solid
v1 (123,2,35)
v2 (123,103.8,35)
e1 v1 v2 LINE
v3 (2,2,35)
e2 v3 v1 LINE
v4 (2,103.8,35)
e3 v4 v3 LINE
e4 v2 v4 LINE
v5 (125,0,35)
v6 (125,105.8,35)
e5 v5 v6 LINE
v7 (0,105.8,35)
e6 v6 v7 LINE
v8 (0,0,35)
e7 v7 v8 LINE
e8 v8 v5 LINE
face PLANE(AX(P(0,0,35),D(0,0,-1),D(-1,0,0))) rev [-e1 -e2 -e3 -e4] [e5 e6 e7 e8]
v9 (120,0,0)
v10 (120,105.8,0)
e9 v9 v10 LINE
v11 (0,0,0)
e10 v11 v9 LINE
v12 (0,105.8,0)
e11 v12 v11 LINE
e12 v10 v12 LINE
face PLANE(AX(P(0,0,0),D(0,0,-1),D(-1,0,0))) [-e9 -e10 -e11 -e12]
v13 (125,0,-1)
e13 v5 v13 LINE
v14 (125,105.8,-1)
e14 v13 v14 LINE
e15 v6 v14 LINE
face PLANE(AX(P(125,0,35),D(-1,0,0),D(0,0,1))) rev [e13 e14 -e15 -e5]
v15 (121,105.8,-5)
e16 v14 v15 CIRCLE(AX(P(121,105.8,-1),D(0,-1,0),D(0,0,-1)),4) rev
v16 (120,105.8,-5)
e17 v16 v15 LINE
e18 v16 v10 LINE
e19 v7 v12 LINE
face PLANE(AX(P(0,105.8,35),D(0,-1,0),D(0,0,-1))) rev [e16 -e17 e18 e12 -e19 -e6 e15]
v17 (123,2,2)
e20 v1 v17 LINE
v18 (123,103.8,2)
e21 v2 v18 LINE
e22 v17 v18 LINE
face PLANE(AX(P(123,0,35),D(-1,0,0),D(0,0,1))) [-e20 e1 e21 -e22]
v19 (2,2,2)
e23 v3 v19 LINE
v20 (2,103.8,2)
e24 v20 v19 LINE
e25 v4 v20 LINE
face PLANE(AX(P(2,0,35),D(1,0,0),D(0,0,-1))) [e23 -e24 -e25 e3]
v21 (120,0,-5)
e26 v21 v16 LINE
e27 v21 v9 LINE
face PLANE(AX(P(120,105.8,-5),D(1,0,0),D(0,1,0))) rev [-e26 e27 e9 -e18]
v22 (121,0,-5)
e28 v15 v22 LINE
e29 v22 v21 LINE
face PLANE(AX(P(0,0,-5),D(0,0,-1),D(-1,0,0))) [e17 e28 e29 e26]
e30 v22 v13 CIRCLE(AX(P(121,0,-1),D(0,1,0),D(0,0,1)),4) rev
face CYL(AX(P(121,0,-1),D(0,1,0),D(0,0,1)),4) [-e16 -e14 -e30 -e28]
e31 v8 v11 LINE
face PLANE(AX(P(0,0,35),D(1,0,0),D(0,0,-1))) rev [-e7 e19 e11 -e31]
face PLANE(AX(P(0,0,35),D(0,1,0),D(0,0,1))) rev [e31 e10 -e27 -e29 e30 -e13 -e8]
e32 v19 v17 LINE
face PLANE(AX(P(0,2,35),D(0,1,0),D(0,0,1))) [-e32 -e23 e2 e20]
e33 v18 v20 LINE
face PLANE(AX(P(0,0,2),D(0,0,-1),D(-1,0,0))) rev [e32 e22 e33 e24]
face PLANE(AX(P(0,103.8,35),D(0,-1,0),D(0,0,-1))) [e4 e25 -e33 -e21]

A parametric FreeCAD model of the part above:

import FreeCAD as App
import Part
import Sketcher
from FreeCAD import Vector


def edges_at(feature, points):
    """Names of the edges that pass closest to the given points."""
    edges = feature.Shape.Edges
    near = lambda p: min(range(len(edges)), key=lambda i: edges[i].distToShape(Part.Vertex(*p))[0])
    return sorted({f"Edge{near(p) + 1}" for p in points})


def faces_at(feature, points):
    """Names of the faces that lie closest to the given points."""
    faces = feature.Shape.Faces
    near = lambda p: min(range(len(faces)), key=lambda i: faces[i].distToShape(Part.Vertex(*p))[0])
    return sorted({f"Face{near(p) + 1}" for p in points})


def add_polygon(sketch, points):
    """Adds a closed chain of lines whose ends are joined by coincident constraints."""
    first, n = sketch.GeometryCount, len(points)
    for a, b in zip(points, points[1:] + points[:1]):
        sketch.addGeometry(Part.LineSegment(App.Vector(*a, 0), App.Vector(*b, 0)), False)
    for i in range(n):
        sketch.addConstraint(Sketcher.Constraint("Coincident", first + i, 2, first + (i + 1) % n, 1))

doc = App.newDocument("Part")
body = doc.addObject("PartDesign::Body", "Body")

# Sketch on XY plane
sketch1 = body.newObject("Sketcher::SketchObject", "Sketch")
sketch1.AttachmentSupport = (doc.getObject("XY_Plane"), [""])
sketch1.MapMode = "FlatFace"
add_polygon(sketch1, [(0, 105.8), (0, 0), (125, 0), (125, 105.8)])  # lines 0-3
sketch1.addConstraint(Sketcher.Constraint("Vertical", 0))
sketch1.addConstraint(Sketcher.Constraint("Horizontal", 1))
sketch1.addConstraint(Sketcher.Constraint("Vertical", 2))
sketch1.addConstraint(Sketcher.Constraint("Horizontal", 3))
sketch1.addConstraint(Sketcher.Constraint("Coincident", 0, 2, -1, 1))
sketch1.addConstraint(Sketcher.Constraint("DistanceX", 1, 1, 1, 2, 125.0))
sketch1.addConstraint(Sketcher.Constraint("DistanceY", 0, 2, 0, 1, 105.8))
pad1 = body.newObject("PartDesign::Pad", "Pad")
pad1.Profile = sketch1
pad1.Length = 35
doc.recompute()

thickness = body.newObject("PartDesign::Thickness", "Thickness")
thickness.Base = (pad1, faces_at(pad1, [(62.5, 52.9, 35)]))
thickness.Value = 2
thickness.Reversed = True
thickness.Join = "Intersection"

# Sketch on XY plane
sketch2 = body.newObject("Sketcher::SketchObject", "Sketch001")
sketch2.AttachmentSupport = (doc.getObject("XY_Plane"), [""])
sketch2.MapMode = "FlatFace"
add_polygon(sketch2, [(125, 105.8), (125, 0), (120, 0), (120, 105.8)])  # lines 0-3
sketch2.addConstraint(Sketcher.Constraint("Vertical", 0))
sketch2.addConstraint(Sketcher.Constraint("Horizontal", 1))
sketch2.addConstraint(Sketcher.Constraint("Vertical", 2))
sketch2.addConstraint(Sketcher.Constraint("Horizontal", 3))
sketch2.addConstraint(Sketcher.Constraint("PointOnObject", 0, 2, -1))
sketch2.addConstraint(Sketcher.Constraint("DistanceX", 1, 2, 1, 1, 5.0))
sketch2.addConstraint(Sketcher.Constraint("DistanceY", 0, 2, 0, 1, 105.8))
sketch2.addConstraint(Sketcher.Constraint("DistanceX", -1, 1, 0, 2, 125.0))
pad2 = body.newObject("PartDesign::Pad", "Pad001")
pad2.Profile = sketch2
pad2.Length = 5
pad2.Reversed = True
doc.recompute()

fillet = body.newObject("PartDesign::Fillet", "Fillet")
fillet.Base = (pad2, edges_at(pad2, [(125, 52.9, -5)]))
fillet.Radius = 4

doc.recompute()
